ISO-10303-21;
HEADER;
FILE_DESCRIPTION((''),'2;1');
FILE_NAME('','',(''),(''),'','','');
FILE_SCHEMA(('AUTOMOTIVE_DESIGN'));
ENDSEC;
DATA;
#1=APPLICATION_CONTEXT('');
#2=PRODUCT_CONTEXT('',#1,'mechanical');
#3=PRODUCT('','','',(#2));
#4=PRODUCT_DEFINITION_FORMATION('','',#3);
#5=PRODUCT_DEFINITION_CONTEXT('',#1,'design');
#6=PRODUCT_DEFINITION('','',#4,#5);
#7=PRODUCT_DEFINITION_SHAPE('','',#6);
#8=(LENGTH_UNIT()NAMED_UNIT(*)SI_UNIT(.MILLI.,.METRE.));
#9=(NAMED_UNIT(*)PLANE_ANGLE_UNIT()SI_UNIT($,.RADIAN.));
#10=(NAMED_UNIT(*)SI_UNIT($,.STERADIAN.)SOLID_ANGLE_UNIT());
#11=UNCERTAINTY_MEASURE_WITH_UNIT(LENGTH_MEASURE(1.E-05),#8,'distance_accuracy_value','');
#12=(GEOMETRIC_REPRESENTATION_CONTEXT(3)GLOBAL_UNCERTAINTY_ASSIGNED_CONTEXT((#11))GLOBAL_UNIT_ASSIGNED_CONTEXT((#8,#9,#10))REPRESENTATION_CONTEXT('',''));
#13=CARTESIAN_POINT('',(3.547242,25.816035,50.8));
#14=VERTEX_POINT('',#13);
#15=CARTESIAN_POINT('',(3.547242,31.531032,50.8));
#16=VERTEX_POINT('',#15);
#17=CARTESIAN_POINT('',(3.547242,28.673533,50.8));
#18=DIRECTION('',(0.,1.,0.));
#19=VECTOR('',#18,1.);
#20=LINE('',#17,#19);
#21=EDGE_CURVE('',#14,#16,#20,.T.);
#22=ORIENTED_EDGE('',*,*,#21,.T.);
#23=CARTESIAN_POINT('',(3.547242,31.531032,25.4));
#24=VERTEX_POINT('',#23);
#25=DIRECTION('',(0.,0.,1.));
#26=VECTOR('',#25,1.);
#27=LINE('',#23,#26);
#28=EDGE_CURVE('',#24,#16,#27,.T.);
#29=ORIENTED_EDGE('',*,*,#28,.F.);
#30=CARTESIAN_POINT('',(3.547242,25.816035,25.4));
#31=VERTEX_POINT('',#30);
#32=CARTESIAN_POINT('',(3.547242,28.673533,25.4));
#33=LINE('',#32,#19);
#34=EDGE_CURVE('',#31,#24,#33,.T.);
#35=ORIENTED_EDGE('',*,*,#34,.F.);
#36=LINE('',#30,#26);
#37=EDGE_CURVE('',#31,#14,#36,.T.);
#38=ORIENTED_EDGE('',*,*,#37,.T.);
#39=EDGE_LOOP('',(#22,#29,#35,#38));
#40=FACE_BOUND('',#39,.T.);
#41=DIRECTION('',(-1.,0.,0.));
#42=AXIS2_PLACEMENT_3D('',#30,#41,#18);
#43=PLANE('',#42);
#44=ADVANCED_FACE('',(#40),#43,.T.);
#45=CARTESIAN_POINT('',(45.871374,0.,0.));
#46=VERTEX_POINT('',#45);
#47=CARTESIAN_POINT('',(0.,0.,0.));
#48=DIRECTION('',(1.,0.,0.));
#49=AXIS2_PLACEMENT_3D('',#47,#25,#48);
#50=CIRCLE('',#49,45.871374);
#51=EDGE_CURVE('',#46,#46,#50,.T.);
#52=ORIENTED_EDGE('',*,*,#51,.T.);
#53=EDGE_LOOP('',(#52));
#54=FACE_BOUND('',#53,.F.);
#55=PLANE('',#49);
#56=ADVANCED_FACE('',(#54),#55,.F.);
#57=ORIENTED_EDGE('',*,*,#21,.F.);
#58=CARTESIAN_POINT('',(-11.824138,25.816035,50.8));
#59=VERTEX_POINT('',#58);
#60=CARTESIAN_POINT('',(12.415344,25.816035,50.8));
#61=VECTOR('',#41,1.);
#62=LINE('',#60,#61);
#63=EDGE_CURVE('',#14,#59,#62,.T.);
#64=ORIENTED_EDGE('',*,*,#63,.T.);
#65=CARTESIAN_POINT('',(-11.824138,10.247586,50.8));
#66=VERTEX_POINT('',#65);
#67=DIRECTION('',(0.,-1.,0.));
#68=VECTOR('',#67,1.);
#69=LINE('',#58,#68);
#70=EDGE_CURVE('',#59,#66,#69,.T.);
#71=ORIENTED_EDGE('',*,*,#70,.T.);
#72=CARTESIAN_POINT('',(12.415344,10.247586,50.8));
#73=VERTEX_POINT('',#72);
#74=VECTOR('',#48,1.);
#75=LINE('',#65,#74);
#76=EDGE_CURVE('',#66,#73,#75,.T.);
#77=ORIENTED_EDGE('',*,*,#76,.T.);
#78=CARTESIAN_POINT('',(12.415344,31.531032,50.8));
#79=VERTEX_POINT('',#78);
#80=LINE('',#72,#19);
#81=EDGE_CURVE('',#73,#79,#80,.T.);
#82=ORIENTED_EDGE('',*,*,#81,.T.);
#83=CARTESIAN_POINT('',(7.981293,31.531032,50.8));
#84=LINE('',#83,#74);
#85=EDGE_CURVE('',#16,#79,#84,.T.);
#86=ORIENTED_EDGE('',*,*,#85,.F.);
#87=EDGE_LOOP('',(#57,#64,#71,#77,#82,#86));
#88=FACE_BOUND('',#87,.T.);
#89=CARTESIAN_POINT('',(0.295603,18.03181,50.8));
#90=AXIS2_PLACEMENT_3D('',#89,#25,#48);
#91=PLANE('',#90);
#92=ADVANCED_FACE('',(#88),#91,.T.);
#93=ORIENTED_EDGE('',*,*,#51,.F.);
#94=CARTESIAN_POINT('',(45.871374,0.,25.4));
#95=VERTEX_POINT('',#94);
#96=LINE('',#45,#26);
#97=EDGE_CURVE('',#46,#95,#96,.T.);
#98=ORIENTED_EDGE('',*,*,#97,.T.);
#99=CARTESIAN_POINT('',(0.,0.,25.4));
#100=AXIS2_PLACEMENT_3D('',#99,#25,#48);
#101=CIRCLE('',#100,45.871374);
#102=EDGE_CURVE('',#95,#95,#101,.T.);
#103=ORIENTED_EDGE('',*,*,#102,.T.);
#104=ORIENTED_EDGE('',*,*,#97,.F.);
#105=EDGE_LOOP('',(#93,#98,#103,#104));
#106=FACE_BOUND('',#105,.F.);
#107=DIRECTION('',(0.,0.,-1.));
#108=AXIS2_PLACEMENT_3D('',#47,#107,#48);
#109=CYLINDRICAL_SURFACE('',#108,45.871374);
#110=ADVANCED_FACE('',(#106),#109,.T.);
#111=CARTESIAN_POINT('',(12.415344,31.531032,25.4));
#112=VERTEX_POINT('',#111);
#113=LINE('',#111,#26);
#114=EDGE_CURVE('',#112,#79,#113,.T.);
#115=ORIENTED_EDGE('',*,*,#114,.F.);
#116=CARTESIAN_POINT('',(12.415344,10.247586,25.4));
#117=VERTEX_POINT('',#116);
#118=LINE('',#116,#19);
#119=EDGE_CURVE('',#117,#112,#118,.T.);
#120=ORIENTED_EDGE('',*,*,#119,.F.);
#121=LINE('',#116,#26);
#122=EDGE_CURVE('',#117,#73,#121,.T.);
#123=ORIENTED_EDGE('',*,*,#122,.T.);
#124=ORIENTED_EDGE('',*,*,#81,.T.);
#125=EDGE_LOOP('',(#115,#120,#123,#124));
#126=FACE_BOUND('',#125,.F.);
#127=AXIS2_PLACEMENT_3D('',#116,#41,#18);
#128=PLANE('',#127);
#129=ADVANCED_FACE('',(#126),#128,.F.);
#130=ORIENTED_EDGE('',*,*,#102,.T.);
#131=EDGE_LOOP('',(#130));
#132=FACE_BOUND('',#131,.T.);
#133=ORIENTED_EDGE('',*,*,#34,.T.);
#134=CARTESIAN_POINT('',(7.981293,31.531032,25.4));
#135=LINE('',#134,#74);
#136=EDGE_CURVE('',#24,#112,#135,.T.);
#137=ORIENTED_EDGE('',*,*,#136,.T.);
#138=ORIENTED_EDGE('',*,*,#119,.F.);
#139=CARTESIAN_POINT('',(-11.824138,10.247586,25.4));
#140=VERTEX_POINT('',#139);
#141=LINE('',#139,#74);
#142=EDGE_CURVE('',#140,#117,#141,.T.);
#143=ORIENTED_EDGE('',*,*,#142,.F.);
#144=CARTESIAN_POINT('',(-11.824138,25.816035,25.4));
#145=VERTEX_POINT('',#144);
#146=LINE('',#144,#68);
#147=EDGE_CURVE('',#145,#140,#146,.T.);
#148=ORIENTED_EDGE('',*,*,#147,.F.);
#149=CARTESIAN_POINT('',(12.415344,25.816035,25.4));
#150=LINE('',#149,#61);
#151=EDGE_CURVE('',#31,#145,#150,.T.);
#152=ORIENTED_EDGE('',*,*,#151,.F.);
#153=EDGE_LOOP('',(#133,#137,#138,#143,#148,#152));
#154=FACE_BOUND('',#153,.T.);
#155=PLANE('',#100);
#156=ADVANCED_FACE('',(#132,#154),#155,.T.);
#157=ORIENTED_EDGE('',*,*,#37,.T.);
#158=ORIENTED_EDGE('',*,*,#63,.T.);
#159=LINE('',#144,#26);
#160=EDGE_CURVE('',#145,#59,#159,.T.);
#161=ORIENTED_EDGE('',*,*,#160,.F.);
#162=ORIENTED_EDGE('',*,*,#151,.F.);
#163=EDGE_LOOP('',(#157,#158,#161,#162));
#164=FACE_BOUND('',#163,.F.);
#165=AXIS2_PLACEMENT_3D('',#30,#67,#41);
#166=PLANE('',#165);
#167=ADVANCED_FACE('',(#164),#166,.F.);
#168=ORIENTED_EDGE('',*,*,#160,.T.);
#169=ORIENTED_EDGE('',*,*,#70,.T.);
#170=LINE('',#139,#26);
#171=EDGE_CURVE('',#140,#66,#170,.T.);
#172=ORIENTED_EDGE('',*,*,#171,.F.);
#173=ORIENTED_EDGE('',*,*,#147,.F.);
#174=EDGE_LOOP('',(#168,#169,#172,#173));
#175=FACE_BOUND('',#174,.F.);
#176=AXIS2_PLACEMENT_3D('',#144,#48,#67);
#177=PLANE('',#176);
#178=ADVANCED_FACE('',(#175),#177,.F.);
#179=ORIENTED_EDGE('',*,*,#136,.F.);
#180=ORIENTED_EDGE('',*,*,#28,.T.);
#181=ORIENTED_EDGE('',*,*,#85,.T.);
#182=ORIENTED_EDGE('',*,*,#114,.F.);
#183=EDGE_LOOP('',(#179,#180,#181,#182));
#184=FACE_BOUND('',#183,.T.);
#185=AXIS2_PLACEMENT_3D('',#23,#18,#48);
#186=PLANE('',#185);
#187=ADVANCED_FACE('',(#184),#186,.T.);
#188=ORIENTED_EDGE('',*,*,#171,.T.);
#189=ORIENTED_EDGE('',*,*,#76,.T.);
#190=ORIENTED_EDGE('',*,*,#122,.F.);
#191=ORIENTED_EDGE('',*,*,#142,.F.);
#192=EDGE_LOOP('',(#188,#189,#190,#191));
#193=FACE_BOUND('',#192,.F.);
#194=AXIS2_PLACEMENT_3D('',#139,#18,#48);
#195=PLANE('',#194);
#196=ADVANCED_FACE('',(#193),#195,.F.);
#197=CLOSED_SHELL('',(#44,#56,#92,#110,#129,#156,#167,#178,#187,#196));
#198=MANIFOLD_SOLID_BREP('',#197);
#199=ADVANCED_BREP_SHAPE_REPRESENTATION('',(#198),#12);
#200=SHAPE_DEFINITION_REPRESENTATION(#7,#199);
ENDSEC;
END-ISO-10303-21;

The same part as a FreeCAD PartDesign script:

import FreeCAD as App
import Part
import Sketcher
from FreeCAD import Vector
Q = App.Units.Quantity


def add_polygon(sketch, points):
    """Adds a closed chain of lines whose ends are joined by coincident constraints."""
    first, n = sketch.GeometryCount, len(points)
    for a, b in zip(points, points[1:] + points[:1]):
        sketch.addGeometry(Part.LineSegment(App.Vector(*a, 0), App.Vector(*b, 0)), False)
    for i in range(n):
        sketch.addConstraint(Sketcher.Constraint("Coincident", first + i, 2, first + (i + 1) % n, 1))

doc = App.newDocument("Part")
params = doc.addObject("Spreadsheet::Sheet", "Params")
for row, (alias, value) in enumerate([
    ("pad1_length", "1 in"),
    ("sketch2_height", "0.2249999 in"),
    ("pad2_length", "1 in"),
], start=1):
    params.set(f"A{row}", alias)
    params.set(f"B{row}", "=" + value)
    params.setAlias(f"B{row}", alias)

body = doc.addObject("PartDesign::Body", "Body")

sketch1 = body.newObject("Sketcher::SketchObject", "Sketch")
sketch1.AttachmentSupport = (doc.getObject("XY_Plane"), [""])
sketch1.MapMode = "FlatFace"
sketch1.addGeometry(Part.Circle(Vector(0, 0, 0), Vector(0, 0, 1), 46), False)
sketch1.addConstraint(Sketcher.Constraint("Coincident", 0, 3, -1, 1))
sketch1.addConstraint(Sketcher.Constraint("Diameter", 0, 91.742748))
pad1 = body.newObject("PartDesign::Pad", "Pad")
pad1.Profile = sketch1
pad1.setExpression("Length", "Params.pad1_length")

sketch2 = body.newObject("Sketcher::SketchObject", "Sketch001")
sketch2.AttachmentSupport = (doc.getObject("XY_Plane"), [""])
sketch2.MapMode = "FlatFace"
sketch2.AttachmentOffset = App.Placement(Vector(0, 0, 1 * 25.4), App.Rotation())
add_polygon(sketch2, [(4, 26), (-12, 26), (-12, 10), (12, 10), (12, 32), (4, 32)])
sketch2.addConstraint(Sketcher.Constraint("Horizontal", 0))
sketch2.addConstraint(Sketcher.Constraint("Vertical", 1))
sketch2.addConstraint(Sketcher.Constraint("Horizontal", 2))
sketch2.addConstraint(Sketcher.Constraint("Vertical", 3))
sketch2.addConstraint(Sketcher.Constraint("Horizontal", 4))
sketch2.addConstraint(Sketcher.Constraint("Vertical", 5))
sketch2.addConstraint(Sketcher.Constraint("DistanceY", 5, 2, 5, 1, Q("0.2249999 in")))
sketch2.addConstraint(Sketcher.Constraint("DistanceX", 0, 2, 0, 1, 15.37138))
sketch2.addConstraint(Sketcher.Constraint("DistanceX", 2, 1, 2, 2, 24.239482))
sketch2.addConstraint(Sketcher.Constraint("DistanceY", 1, 2, 1, 1, 15.568449))
sketch2.addConstraint(Sketcher.Constraint("DistanceY", -1, 1, 3, 2, 31.531032))
sketch2.addConstraint(Sketcher.Constraint("DistanceX", -1, 1, 4, 2, 3.547242))
sketch2.setExpression("Constraints[12]", "Params.sketch2_height")
pad2 = body.newObject("PartDesign::Pad", "Pad001")
pad2.Profile = sketch2
pad2.setExpression("Length", "Params.pad2_length")

doc.recompute()
